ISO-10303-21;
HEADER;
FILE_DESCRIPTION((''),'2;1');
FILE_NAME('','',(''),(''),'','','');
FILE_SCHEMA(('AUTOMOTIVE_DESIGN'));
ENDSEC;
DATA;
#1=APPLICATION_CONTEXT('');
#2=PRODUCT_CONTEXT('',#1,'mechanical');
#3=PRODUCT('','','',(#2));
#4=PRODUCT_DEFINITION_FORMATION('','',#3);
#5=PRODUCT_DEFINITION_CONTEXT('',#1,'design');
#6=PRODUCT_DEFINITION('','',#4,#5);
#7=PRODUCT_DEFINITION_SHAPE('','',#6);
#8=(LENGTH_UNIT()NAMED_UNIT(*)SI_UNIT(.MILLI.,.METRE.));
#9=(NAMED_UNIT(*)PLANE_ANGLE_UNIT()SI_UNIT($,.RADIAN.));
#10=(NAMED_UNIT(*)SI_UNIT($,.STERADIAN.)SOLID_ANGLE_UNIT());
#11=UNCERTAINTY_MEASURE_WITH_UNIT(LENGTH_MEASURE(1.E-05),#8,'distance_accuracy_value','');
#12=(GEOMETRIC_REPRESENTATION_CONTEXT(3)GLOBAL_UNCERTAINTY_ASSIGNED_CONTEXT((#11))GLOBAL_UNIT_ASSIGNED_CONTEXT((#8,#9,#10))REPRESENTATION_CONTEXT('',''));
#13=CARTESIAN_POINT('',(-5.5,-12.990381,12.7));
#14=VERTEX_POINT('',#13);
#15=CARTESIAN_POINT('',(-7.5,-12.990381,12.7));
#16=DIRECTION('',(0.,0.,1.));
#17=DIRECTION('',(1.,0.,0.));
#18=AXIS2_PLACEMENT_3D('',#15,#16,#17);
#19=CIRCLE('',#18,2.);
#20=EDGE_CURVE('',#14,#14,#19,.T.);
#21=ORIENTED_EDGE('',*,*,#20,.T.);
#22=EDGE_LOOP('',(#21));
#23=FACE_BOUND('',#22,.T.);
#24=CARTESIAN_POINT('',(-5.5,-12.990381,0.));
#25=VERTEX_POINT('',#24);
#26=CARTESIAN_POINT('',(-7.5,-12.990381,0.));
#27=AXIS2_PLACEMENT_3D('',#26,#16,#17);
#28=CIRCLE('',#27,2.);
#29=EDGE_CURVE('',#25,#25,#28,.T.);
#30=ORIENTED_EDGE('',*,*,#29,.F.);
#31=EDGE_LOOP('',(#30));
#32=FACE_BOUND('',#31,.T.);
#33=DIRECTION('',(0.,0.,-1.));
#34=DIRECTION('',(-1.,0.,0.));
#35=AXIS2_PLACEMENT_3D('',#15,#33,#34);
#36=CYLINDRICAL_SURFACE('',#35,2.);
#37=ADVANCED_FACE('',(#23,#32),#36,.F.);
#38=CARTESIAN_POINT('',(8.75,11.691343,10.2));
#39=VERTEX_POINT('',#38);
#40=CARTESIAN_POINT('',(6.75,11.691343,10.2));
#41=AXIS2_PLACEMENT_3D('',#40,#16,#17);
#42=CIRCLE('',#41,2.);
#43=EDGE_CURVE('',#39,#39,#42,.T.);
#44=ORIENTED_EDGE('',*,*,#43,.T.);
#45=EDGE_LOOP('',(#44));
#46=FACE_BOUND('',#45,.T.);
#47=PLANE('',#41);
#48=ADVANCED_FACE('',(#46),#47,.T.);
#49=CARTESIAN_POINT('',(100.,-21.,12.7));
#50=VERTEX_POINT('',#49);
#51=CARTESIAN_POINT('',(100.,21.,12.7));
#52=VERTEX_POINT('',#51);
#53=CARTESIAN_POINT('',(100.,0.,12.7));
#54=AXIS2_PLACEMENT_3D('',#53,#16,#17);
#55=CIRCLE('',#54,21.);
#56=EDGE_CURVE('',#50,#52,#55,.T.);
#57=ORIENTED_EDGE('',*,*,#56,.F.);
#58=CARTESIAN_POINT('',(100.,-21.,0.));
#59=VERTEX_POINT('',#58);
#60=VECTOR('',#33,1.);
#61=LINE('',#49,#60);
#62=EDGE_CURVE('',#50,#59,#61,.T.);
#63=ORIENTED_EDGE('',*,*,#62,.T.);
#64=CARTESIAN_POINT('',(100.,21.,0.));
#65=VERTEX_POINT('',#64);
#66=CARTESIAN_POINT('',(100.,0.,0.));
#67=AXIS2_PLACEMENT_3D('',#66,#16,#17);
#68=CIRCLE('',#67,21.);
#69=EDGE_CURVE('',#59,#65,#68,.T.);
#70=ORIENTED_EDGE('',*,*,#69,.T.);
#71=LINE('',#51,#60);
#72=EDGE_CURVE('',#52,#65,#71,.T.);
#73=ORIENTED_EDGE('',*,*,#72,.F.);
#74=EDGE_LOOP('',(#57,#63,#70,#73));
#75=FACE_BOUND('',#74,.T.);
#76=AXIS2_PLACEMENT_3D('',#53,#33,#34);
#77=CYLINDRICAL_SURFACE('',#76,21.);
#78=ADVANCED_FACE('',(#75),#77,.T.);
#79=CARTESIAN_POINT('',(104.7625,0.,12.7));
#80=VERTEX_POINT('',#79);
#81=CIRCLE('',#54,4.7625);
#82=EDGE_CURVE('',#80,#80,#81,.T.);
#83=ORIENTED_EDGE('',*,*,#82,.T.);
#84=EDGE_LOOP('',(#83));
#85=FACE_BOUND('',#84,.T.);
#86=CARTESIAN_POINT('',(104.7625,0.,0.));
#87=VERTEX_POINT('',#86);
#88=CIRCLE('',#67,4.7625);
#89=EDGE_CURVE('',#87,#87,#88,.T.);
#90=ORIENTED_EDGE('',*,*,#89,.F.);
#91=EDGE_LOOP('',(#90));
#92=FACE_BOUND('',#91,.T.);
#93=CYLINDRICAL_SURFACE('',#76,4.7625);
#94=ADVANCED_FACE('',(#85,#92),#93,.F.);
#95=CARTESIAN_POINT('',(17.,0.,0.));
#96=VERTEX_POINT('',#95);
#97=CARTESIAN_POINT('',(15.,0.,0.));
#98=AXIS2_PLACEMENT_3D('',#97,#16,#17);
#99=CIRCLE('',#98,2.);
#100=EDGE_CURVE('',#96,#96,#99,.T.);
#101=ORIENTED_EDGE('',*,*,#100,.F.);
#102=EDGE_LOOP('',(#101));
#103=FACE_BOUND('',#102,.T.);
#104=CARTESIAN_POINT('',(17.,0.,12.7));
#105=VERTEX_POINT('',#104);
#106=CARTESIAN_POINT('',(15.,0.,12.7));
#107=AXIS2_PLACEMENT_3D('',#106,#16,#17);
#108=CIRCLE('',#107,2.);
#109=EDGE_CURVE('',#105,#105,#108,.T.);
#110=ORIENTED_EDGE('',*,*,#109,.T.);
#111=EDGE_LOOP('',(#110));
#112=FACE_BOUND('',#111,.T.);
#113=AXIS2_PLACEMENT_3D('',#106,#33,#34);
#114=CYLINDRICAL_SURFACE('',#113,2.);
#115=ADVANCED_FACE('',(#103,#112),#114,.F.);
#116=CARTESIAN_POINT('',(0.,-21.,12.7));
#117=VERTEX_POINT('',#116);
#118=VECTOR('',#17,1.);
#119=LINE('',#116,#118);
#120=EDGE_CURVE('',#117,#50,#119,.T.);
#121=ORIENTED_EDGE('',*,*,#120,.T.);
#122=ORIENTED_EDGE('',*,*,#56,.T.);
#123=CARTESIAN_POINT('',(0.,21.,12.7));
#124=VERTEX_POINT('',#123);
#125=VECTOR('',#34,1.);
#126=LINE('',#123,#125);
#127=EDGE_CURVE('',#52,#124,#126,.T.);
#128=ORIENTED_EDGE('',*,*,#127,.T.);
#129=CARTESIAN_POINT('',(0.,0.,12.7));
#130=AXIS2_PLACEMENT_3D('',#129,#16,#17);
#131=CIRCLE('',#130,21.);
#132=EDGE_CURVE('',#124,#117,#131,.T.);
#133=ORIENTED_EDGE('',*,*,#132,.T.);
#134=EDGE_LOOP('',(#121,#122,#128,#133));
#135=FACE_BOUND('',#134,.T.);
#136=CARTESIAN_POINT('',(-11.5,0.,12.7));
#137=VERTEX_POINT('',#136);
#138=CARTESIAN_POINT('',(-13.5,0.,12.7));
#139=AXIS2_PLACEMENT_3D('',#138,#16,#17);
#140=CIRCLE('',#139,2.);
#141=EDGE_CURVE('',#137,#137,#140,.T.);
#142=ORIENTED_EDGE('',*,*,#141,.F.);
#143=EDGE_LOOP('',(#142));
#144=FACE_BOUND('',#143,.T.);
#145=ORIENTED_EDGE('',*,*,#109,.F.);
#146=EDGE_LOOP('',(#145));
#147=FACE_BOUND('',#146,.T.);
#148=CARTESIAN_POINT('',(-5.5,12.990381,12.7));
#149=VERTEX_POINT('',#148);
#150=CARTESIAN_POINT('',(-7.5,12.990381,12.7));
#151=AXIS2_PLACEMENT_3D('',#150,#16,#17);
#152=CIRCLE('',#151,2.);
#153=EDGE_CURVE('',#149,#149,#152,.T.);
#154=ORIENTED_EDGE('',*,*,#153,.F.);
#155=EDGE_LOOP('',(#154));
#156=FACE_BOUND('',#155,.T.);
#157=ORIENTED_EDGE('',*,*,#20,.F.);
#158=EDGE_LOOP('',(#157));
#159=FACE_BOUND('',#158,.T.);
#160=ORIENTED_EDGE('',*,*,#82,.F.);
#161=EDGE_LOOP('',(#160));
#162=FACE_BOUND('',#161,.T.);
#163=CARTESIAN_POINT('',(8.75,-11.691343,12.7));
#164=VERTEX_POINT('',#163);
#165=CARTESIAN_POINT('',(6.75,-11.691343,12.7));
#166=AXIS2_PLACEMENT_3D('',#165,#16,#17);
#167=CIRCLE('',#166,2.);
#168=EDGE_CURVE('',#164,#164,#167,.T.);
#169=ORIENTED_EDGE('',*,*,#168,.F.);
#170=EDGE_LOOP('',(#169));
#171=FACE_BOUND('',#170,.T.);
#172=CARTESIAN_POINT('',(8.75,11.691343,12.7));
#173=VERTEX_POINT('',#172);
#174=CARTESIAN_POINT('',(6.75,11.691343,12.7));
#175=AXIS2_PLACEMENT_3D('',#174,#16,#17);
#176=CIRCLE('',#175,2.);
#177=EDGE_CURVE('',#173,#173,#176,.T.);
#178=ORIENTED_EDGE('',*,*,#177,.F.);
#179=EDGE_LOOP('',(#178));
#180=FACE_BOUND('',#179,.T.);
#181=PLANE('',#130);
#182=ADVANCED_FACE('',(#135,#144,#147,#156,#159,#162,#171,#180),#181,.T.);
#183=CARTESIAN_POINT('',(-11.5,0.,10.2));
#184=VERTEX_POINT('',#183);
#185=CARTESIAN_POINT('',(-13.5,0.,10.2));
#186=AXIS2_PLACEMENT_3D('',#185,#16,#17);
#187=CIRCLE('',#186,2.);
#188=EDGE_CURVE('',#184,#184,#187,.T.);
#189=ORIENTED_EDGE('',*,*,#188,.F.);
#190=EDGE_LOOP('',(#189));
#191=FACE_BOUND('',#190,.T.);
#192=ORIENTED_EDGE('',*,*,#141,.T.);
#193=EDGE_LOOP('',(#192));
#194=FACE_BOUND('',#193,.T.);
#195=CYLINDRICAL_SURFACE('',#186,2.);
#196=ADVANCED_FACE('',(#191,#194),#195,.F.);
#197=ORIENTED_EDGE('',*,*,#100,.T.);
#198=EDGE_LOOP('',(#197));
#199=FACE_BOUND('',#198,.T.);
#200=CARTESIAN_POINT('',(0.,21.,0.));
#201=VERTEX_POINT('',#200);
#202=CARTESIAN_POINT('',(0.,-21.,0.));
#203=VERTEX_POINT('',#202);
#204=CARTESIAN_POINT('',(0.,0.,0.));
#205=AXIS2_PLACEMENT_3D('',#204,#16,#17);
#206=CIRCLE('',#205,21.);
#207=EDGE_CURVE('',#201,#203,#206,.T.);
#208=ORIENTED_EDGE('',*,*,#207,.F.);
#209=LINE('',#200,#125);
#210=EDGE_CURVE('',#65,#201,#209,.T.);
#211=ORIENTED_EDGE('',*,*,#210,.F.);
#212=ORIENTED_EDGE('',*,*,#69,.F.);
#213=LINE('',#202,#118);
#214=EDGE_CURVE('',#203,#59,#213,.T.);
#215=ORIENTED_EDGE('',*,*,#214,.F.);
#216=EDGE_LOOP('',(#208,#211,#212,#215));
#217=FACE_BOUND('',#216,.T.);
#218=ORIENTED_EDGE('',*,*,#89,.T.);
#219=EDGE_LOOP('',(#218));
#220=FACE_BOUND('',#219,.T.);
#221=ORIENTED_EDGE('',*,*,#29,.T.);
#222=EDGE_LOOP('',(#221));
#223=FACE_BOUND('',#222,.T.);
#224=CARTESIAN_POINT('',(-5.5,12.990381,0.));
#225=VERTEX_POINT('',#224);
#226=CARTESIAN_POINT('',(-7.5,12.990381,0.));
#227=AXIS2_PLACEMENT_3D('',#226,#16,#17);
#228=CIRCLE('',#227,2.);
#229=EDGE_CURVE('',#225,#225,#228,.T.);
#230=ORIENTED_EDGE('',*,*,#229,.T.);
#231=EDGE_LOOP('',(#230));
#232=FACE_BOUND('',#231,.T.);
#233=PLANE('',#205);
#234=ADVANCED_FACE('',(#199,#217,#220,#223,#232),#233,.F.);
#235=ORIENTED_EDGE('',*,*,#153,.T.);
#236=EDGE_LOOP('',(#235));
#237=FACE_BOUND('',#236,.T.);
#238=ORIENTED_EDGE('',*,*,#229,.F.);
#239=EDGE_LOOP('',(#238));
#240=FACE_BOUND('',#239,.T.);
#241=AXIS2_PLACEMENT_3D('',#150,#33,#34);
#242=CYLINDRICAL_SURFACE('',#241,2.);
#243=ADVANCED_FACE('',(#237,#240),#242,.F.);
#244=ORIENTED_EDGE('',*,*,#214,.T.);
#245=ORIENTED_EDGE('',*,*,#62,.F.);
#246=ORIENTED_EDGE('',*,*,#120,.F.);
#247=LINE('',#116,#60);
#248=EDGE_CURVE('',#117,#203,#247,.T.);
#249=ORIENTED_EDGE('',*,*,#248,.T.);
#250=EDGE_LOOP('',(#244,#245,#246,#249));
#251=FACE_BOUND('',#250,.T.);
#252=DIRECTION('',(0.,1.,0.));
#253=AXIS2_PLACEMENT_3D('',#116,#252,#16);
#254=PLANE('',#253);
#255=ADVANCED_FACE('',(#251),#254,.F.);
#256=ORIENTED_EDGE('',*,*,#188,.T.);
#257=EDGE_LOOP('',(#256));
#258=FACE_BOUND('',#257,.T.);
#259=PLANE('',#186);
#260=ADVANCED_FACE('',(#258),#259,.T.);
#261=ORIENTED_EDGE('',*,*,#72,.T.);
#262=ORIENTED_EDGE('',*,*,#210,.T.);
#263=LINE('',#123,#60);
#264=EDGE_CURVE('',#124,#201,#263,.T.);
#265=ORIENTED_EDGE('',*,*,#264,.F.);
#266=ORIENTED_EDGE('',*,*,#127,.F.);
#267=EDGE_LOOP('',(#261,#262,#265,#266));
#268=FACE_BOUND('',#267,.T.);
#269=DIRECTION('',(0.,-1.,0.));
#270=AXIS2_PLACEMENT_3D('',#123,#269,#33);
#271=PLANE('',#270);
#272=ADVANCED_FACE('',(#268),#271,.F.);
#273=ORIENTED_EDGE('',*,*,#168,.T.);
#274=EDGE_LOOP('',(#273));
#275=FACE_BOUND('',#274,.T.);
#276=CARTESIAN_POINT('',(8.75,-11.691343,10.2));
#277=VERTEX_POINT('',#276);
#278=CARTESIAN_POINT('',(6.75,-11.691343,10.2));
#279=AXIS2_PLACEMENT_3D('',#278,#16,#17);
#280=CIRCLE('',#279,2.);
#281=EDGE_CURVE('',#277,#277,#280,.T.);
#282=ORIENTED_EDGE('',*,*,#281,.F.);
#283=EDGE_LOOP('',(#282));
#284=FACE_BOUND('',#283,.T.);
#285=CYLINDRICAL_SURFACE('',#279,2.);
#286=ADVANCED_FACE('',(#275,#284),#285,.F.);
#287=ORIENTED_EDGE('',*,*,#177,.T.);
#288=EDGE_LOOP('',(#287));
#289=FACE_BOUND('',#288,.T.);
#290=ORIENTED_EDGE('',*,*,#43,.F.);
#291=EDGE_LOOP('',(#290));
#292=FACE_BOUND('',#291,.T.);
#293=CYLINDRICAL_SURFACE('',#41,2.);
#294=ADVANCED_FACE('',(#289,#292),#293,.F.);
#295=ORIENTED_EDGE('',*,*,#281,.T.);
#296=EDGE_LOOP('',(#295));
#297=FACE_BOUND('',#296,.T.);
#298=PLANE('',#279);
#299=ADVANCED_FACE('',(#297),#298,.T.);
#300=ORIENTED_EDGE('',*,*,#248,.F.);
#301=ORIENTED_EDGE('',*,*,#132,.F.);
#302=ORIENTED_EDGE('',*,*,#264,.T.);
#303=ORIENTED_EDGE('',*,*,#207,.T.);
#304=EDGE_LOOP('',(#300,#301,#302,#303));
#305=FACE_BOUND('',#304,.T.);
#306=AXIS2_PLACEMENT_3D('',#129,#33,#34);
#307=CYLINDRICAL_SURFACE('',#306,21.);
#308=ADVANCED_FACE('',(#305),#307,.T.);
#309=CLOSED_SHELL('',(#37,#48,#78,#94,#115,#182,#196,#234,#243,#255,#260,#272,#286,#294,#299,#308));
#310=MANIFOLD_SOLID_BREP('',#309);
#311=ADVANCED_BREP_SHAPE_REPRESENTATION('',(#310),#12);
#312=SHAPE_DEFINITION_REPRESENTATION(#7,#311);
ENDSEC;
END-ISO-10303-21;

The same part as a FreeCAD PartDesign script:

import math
import FreeCAD as App
import Part
import Sketcher
Q = App.Units.Quantity

doc = App.newDocument("Part")
params = doc.addObject("Spreadsheet::Sheet", "Params")
for row, (alias, value) in enumerate([
    ("sketch1_diameter", "4 mm"),
    ("sketch1_radius", "21 mm"),
    ("sketch1_width", "100 mm"),
    ("pad1_length", "12.7 mm"),
    ("sketch2_diameter", "4 mm"),
    ("pocket1_length", "2.5 mm"),
], start=1):
    params.set(f"A{row}", alias)
    params.set(f"B{row}", "=" + value)
    params.setAlias(f"B{row}", alias)

body = doc.addObject("PartDesign::Body", "Body")

sketch1 = doc.addObject("Sketcher::SketchObject", "Sketch")
body.addObject(sketch1)
sketch1.AttachmentSupport = (doc.XY_Plane, [""])
sketch1.MapMode = "FlatFace"
sketch1.addGeometry([
    Part.LineSegment(App.Vector(100, 21, 0), App.Vector(0, 21, 0)),
    Part.ArcOfCircle(Part.Circle(App.Vector(0, 0, 0), App.Vector(0, 0, 1), 21), math.radians(90), math.radians(270)),
    Part.LineSegment(App.Vector(0, -21, 0), App.Vector(100, -21, 0)),
    Part.ArcOfCircle(Part.Circle(App.Vector(100, 0, 0), App.Vector(0, 0, 1), 21), math.radians(-90), math.radians(90)),
    Part.Circle(App.Vector(-7.5, -13, 0), App.Vector(0, 0, 1), 2),
    Part.Circle(App.Vector(100, 0, 0), App.Vector(0, 0, 1), 4.8),
    Part.Circle(App.Vector(15, 0, 0), App.Vector(0, 0, 1), 2),
    Part.Circle(App.Vector(-7.5, 13, 0), App.Vector(0, 0, 1), 2),
], False)
sketch1.addConstraint([
    Sketcher.Constraint("Tangent", 0, 2, 1, 1),
    Sketcher.Constraint("Tangent", 1, 2, 2, 1),
    Sketcher.Constraint("Tangent", 2, 2, 3, 1),
    Sketcher.Constraint("Tangent", 3, 2, 0, 1),
    Sketcher.Constraint("Horizontal", 0),
    Sketcher.Constraint("Horizontal", 2),
    Sketcher.Constraint("Coincident", 1, 3, -1, 1),
    Sketcher.Constraint("Coincident", 5, 3, 3, 3),
    Sketcher.Constraint("Equal", 4, 6),
    Sketcher.Constraint("Equal", 6, 7),
    Sketcher.Constraint("Symmetric", 4, 3, 7, 3, -1),
    Sketcher.Constraint("PointOnObject", 6, 3, -1),
    Sketcher.Constraint("Diameter", 4, Q("4 mm")),
    Sketcher.Constraint("Radius", 1, Q("21 mm")),
    Sketcher.Constraint("DistanceX", 0, 2, 0, 1, Q("100 mm")),
    Sketcher.Constraint("Diameter", 5, Q("9.525 mm")),
    Sketcher.Constraint("DistanceX", -1, 1, 6, 3, Q("15 mm")),
    Sketcher.Constraint("DistanceX", 4, 3, -1, 1, Q("7.5 mm")),
    Sketcher.Constraint("DistanceY", 4, 3, -1, 1, Q("12.990381 mm")),
])
sketch1.setExpression("Constraints[12]", "Params.sketch1_diameter")
sketch1.setExpression("Constraints[13]", "Params.sketch1_radius")
sketch1.setExpression("Constraints[14]", "Params.sketch1_width")
pad1 = doc.addObject("PartDesign::Pad", "Pad")
body.addObject(pad1)
pad1.Profile = sketch1
pad1.setExpression("Length", "Params.pad1_length")

sketch2 = doc.addObject("Sketcher::SketchObject", "Sketch001")
body.addObject(sketch2)
sketch2.AttachmentSupport = (doc.XY_Plane, [""])
sketch2.MapMode = "FlatFace"
sketch2.AttachmentOffset = App.Placement(App.Vector(0, 0, 12.7), App.Rotation())
sketch2.addGeometry([
    Part.Circle(App.Vector(-13.5, 0, 0), App.Vector(0, 0, 1), 2),
    Part.Circle(App.Vector(6.8, 11.7, 0), App.Vector(0, 0, 1), 2),
    Part.Circle(App.Vector(6.8, -11.7, 0), App.Vector(0, 0, 1), 2),
], False)
sketch2.addConstraint([
    Sketcher.Constraint("Equal", 0, 1),
    Sketcher.Constraint("Equal", 1, 2),
    Sketcher.Constraint("Symmetric", 1, 3, 2, 3, -1),
    Sketcher.Constraint("PointOnObject", 0, 3, -1),
    Sketcher.Constraint("Diameter", 0, Q("4 mm")),
    Sketcher.Constraint("DistanceX", 0, 3, -1, 1, Q("13.5 mm")),
    Sketcher.Constraint("DistanceX", -1, 1, 1, 3, Q("6.75 mm")),
    Sketcher.Constraint("DistanceY", -1, 1, 1, 3, Q("11.691343 mm")),
])
sketch2.setExpression("Constraints[4]", "Params.sketch2_diameter")
pocket1 = doc.addObject("PartDesign::Pocket", "Pocket")
body.addObject(pocket1)
pocket1.Profile = sketch2
pocket1.setExpression("Length", "Params.pocket1_length")

doc.recompute()
